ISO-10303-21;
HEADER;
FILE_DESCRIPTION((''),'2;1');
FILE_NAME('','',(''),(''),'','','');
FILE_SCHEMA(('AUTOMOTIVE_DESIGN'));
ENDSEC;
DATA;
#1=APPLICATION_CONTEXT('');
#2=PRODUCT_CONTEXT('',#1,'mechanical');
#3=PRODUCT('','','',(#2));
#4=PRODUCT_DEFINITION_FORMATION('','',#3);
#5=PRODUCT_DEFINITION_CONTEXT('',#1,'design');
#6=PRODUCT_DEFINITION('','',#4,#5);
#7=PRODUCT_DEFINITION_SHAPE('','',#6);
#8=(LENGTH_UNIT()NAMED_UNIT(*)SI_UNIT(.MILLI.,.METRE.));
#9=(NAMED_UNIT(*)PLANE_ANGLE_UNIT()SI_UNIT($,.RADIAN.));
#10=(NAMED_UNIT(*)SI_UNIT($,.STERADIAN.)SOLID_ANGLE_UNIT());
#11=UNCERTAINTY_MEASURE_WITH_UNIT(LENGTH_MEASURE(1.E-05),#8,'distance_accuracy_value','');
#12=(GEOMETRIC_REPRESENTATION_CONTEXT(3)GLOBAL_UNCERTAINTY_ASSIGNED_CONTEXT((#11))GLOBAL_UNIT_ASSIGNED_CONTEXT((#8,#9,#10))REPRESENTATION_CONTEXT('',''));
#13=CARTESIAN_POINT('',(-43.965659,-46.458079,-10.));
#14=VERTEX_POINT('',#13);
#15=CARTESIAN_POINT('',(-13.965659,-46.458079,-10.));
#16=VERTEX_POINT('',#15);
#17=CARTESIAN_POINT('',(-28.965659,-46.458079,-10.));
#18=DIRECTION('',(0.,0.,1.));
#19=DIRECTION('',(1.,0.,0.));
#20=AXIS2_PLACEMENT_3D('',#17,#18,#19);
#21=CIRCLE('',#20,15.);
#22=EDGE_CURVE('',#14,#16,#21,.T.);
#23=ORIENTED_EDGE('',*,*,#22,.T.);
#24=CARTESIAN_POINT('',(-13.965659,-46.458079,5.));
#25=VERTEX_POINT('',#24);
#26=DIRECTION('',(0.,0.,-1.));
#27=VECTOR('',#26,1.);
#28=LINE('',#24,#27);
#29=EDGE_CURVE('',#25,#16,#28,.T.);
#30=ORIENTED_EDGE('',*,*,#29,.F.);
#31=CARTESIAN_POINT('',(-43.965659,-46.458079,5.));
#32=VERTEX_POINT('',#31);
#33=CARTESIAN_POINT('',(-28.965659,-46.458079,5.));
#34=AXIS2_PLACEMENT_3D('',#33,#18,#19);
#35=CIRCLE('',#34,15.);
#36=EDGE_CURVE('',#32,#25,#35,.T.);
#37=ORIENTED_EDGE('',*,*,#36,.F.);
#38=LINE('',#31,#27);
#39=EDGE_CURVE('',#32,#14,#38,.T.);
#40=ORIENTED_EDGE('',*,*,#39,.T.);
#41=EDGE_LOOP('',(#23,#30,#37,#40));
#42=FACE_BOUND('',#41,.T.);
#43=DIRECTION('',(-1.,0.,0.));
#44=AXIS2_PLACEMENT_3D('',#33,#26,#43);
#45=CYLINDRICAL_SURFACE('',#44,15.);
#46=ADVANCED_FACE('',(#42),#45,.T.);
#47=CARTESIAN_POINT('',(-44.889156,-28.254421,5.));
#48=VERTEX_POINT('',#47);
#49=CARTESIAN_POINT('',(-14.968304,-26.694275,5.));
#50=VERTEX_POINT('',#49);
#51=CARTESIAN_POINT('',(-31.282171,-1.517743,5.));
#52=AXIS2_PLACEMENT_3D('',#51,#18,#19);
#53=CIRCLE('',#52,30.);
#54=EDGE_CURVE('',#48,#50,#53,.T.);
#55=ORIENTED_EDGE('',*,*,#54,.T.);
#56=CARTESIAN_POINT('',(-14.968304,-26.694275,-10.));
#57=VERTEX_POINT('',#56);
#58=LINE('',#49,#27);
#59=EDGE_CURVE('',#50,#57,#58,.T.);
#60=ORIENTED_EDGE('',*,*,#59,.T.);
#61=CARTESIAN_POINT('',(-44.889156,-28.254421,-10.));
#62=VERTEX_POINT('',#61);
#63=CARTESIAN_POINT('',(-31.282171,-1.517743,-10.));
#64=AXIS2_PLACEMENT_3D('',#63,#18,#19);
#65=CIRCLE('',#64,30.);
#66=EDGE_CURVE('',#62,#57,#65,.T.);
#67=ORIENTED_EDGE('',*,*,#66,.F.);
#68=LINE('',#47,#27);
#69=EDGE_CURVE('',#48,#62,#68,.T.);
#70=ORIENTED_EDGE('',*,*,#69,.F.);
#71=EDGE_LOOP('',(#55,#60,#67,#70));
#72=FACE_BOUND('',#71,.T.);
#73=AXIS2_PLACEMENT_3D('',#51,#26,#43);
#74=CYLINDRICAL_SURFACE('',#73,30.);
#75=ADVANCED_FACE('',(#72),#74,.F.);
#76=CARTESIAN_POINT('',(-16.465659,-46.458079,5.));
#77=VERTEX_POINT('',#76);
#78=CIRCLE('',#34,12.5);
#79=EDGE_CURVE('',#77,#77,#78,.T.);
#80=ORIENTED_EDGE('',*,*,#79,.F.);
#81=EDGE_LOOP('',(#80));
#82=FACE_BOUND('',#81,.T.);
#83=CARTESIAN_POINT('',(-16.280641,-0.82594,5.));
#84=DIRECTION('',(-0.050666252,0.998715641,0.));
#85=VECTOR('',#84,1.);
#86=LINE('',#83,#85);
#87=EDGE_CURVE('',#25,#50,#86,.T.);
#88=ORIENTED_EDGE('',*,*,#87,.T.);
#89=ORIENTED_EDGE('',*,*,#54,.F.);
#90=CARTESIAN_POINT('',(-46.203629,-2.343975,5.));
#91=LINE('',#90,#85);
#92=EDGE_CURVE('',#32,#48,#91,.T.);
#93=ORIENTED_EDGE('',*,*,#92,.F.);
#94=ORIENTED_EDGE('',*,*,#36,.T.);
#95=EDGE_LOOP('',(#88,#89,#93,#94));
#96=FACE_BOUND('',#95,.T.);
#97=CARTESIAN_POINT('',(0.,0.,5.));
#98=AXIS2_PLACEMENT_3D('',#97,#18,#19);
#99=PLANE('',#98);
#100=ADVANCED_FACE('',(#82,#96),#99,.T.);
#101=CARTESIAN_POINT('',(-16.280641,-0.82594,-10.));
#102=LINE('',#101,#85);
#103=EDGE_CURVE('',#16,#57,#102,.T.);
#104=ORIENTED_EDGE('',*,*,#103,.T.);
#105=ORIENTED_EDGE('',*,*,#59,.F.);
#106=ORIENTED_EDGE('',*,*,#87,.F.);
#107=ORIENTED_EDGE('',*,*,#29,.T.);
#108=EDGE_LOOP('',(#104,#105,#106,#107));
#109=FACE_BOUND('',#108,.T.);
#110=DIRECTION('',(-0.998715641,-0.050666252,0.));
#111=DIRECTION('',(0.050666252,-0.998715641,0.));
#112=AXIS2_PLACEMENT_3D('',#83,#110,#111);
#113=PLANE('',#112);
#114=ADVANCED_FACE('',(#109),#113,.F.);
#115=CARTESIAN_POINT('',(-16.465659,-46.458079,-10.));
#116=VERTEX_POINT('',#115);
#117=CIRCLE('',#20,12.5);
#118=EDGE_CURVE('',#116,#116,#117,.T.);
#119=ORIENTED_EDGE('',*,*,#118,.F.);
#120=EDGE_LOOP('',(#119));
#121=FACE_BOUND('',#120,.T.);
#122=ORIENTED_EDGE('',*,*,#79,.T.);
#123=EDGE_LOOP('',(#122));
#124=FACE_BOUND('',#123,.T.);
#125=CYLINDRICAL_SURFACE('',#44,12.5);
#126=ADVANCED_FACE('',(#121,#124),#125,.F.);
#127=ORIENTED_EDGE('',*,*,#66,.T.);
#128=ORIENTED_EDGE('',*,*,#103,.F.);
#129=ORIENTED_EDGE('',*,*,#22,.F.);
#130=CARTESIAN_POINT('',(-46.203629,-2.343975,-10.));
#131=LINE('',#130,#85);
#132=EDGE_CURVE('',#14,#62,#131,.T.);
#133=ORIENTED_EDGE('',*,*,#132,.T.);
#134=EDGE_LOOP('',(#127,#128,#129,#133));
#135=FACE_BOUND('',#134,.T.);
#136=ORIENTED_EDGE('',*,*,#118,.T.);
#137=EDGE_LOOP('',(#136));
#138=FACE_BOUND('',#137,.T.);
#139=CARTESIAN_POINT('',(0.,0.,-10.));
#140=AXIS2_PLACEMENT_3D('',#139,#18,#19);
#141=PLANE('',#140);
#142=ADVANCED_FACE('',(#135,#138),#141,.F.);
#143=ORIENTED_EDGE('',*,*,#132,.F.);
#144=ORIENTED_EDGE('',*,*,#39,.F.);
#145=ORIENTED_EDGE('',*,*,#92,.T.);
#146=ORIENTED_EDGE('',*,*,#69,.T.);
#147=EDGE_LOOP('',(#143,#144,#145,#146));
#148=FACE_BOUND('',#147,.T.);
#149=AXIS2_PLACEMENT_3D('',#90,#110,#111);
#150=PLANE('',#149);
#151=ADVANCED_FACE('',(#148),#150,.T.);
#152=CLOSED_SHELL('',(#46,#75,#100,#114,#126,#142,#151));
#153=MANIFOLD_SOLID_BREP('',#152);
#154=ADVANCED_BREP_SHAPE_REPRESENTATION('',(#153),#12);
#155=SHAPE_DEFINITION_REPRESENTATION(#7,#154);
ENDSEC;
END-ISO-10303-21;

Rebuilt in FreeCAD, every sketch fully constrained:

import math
import FreeCAD as App
import Part
import Sketcher

V = App.Vector
Q = App.Units.Quantity

doc = App.newDocument("Part")
body = doc.addObject("PartDesign::Body", "Body")

sketch1 = body.newObject("Sketcher::SketchObject", "Sketch")
sketch1.AttachmentSupport = (doc.getObject("XY_Plane"), [""])
sketch1.MapMode = "FlatFace"
sketch1.addGeometry([
    Part.LineSegment(V(-44.9, -28.3, 0), V(-44, -46.5, 0)),
    Part.ArcOfCircle(Part.Circle(V(-29, -46.5, 0), V(0, 0, 1), 15), math.radians(180), math.radians(360)),
    Part.LineSegment(V(-14, -46.5, 0), V(-14, -44.9, 0)),
    Part.LineSegment(V(-14, -44.9, 0), V(-15, -26.7, 0)),
    Part.ArcOfCircle(Part.Circle(V(-31.3, -1.5, 0), V(0, 0, 1), 30), math.radians(-117), math.radians(-57)),
    Part.Circle(V(-29, -46.5, 0), V(0, 0, 1), 12.5),
], False)
sketch1.addConstraint([
    Sketcher.Constraint("Coincident", 0, 2, 1, 1),
    Sketcher.Constraint("Coincident", 1, 2, 2, 1),
    Sketcher.Constraint("Coincident", 2, 2, 3, 1),
    Sketcher.Constraint("Coincident", 3, 2, 4, 2),
    Sketcher.Constraint("Coincident", 4, 1, 0, 1),
    Sketcher.Constraint("Coincident", 5, 3, 1, 3),
    Sketcher.Constraint("Parallel", 0, 2),
    Sketcher.Constraint("Parallel", 2, 3),
    Sketcher.Constraint("Horizontal", 5, 3, 0, 2),
    Sketcher.Constraint("Horizontal", 0, 2, 1, 2),
    Sketcher.Constraint("Diameter", 5, Q("25 mm")),
    Sketcher.Constraint("Radius", 1, Q("15 mm")),
    Sketcher.Constraint("Radius", 4, Q("30 mm")),
    Sketcher.Constraint("DistanceX", 4, 3, 2, 2, Q("17.2395 mm")),
    Sketcher.Constraint("DistanceY", 2, 2, 4, 3, Q("43.4223 mm")),
    Sketcher.Constraint("DistanceX", 1, 3, -1, 1, Q("28.965659 mm")),
    Sketcher.Constraint("DistanceY", 1, 3, -1, 1, Q("46.458079 mm")),
    Sketcher.Constraint("DistanceX", 4, 3, -1, 1, Q("31.282171 mm")),
    Sketcher.Constraint("DistanceY", 4, 1, -1, 1, Q("28.254421 mm")),
])
pad1 = body.newObject("PartDesign::Pad", "Pad")
pad1.Profile = sketch1
pad1.Type = "TwoLengths"
pad1.Length = 5
pad1.Length2 = 10

doc.recompute()
